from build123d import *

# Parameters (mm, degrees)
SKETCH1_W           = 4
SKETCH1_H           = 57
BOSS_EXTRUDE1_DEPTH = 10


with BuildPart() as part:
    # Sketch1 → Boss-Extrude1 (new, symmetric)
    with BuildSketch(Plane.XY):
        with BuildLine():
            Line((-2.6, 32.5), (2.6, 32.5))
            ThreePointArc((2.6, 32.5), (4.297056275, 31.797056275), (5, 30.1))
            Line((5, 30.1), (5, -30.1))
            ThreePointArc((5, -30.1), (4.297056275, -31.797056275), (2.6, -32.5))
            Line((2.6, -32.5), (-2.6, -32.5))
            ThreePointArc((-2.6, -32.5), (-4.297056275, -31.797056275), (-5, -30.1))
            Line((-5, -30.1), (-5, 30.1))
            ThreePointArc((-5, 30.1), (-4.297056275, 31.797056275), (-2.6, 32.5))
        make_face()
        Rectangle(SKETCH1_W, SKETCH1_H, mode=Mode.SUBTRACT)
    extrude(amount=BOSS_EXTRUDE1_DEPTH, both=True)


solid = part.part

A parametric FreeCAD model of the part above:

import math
import FreeCAD as App
import Part
import Sketcher

V = App.Vector
Q = App.Units.Quantity

doc = App.newDocument("Part")
body = doc.addObject("PartDesign::Body", "Body")

sketch1 = doc.addObject("Sketcher::SketchObject", "Sketch")
body.addObject(sketch1)
sketch1.AttachmentSupport = (doc.XY_Plane, [""])
sketch1.MapMode = "FlatFace"
sketch1.addGeometry(Part.LineSegment(V(2.6, 32.5, 0), V(-2.6, 32.5, 0)), False)
sketch1.addGeometry(Part.ArcOfCircle(Part.Circle(V(-2.6, 30.1, 0), V(0, 0, 1), 2.4), math.radians(90), math.radians(180)), False)
sketch1.addGeometry(Part.LineSegment(V(-5, 30.1, 0), V(-5, -30.1, 0)), False)
sketch1.addGeometry(Part.ArcOfCircle(Part.Circle(V(-2.6, -30.1, 0), V(0, 0, 1), 2.4), math.radians(180), math.radians(270)), False)
sketch1.addGeometry(Part.LineSegment(V(-2.6, -32.5, 0), V(2.6, -32.5, 0)), False)
sketch1.addGeometry(Part.ArcOfCircle(Part.Circle(V(2.6, -30.1, 0), V(0, 0, 1), 2.4), math.radians(-90), math.radians(0)), False)
sketch1.addGeometry(Part.LineSegment(V(5, -30.1, 0), V(5, 30.1, 0)), False)
sketch1.addGeometry(Part.ArcOfCircle(Part.Circle(V(2.6, 30.1, 0), V(0, 0, 1), 2.4), math.radians(0), math.radians(90)), False)
sketch1.addGeometry(Part.LineSegment(V(-2, -28.5, 0), V(-2, 28.5, 0)), False)
sketch1.addGeometry(Part.LineSegment(V(-2, 28.5, 0), V(2, 28.5, 0)), False)
sketch1.addGeometry(Part.LineSegment(V(2, 28.5, 0), V(2, -28.5, 0)), False)
sketch1.addGeometry(Part.LineSegment(V(2, -28.5, 0), V(-2, -28.5, 0)), False)
sketch1.addConstraint(Sketcher.Constraint("Tangent", 0, 2, 1, 1))
sketch1.addConstraint(Sketcher.Constraint("Tangent", 1, 2, 2, 1))
sketch1.addConstraint(Sketcher.Constraint("Tangent", 2, 2, 3, 1))
sketch1.addConstraint(Sketcher.Constraint("Tangent", 3, 2, 4, 1))
sketch1.addConstraint(Sketcher.Constraint("Tangent", 4, 2, 5, 1))
sketch1.addConstraint(Sketcher.Constraint("Tangent", 5, 2, 6, 1))
sketch1.addConstraint(Sketcher.Constraint("Tangent", 6, 2, 7, 1))
sketch1.addConstraint(Sketcher.Constraint("Tangent", 7, 2, 0, 1))
sketch1.addConstraint(Sketcher.Constraint("Coincident", 8, 2, 9, 1))
sketch1.addConstraint(Sketcher.Constraint("Coincident", 9, 2, 10, 1))
sketch1.addConstraint(Sketcher.Constraint("Coincident", 10, 2, 11, 1))
sketch1.addConstraint(Sketcher.Constraint("Coincident", 11, 2, 8, 1))
sketch1.addConstraint(Sketcher.Constraint("Horizontal", 0))
sketch1.addConstraint(Sketcher.Constraint("Vertical", 2))
sketch1.addConstraint(Sketcher.Constraint("Horizontal", 4))
sketch1.addConstraint(Sketcher.Constraint("Vertical", 6))
sketch1.addConstraint(Sketcher.Constraint("Vertical", 8))
sketch1.addConstraint(Sketcher.Constraint("Horizontal", 9))
sketch1.addConstraint(Sketcher.Constraint("Vertical", 10))
sketch1.addConstraint(Sketcher.Constraint("Horizontal", 11))
sketch1.addConstraint(Sketcher.Constraint("Equal", 1, 3))
sketch1.addConstraint(Sketcher.Constraint("Equal", 3, 5))
sketch1.addConstraint(Sketcher.Constraint("Equal", 5, 7))
sketch1.addConstraint(Sketcher.Constraint("Symmetric", 1, 3, 5, 3, -1, 1))
sketch1.addConstraint(Sketcher.Constraint("Symmetric", 8, 2, 10, 2, -1, 1))
sketch1.addConstraint(Sketcher.Constraint("Radius", 1, Q("2.4 mm")))
sketch1.addConstraint(Sketcher.Constraint("DistanceX", 9, 1, 9, 2, Q("4 mm")))
sketch1.addConstraint(Sketcher.Constraint("DistanceY", 8, 1, 8, 2, Q("57 mm")))
sketch1.addConstraint(Sketcher.Constraint("DistanceX", 0, 2, 0, 1, Q("5.2 mm")))
sketch1.addConstraint(Sketcher.Constraint("DistanceY", 2, 2, 2, 1, Q("60.2 mm")))
pad1 = doc.addObject("PartDesign::Pad", "Pad")
body.addObject(pad1)
pad1.Profile = sketch1
pad1.Length = 20
pad1.Midplane = True

doc.recompute()
